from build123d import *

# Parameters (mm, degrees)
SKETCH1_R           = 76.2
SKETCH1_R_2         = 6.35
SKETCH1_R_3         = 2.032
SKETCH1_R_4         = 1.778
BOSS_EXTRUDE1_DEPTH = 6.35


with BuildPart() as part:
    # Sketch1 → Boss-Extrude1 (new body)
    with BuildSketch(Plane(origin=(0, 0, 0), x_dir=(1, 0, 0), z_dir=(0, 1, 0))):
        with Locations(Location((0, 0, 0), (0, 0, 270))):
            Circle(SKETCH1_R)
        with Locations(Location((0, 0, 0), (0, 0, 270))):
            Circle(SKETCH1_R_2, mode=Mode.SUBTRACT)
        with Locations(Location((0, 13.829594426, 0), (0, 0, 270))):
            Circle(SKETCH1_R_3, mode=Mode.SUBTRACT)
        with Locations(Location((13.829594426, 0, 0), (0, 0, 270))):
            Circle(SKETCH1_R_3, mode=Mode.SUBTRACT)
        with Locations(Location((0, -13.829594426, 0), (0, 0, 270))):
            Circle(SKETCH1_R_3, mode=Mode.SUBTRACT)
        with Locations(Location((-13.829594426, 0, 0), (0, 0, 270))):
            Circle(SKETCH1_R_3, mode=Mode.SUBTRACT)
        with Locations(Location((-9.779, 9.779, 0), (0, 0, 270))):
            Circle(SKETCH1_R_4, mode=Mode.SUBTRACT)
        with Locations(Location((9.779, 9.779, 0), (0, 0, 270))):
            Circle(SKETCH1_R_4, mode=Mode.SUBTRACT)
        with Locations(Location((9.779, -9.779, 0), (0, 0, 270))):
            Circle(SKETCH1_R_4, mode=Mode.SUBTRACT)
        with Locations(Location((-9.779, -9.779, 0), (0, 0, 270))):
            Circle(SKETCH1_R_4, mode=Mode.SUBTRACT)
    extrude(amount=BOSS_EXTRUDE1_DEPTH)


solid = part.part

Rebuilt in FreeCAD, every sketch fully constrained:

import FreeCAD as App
import Part
import Sketcher

V = App.Vector
Q = App.Units.Quantity

doc = App.newDocument("Part")
body = doc.addObject("PartDesign::Body", "Body")

# Sketch on XZ plane
sketch1 = doc.addObject("Sketcher::SketchObject", "Sketch")
body.addObject(sketch1)
sketch1.AttachmentSupport = (doc.XZ_Plane, [""])
sketch1.MapMode = "FlatFace"
sketch1.addGeometry([
    Part.Circle(V(0, 0, 0), V(0, 0, 1), 76.2),  # 0
    Part.Circle(V(-9.779, -9.779, 0), V(0, 0, 1), 1.778),  # 1
    Part.Circle(V(0, -13.829594, 0), V(0, 0, 1), 2.032),  # 2
    Part.Circle(V(0, 0, 0), V(0, 0, 1), 6.35),  # 3
    Part.Circle(V(-13.829594, 0, 0), V(0, 0, 1), 2.032),  # 4
    Part.Circle(V(-9.779, 9.779, 0), V(0, 0, 1), 1.778),  # 5
    Part.Circle(V(9.779, -9.779, 0), V(0, 0, 1), 1.778),  # 6
    Part.Circle(V(13.829594, 0, 0), V(0, 0, 1), 2.032),  # 7
    Part.Circle(V(0, 13.829594, 0), V(0, 0, 1), 2.032),  # 8
    Part.Circle(V(9.779, 9.779, 0), V(0, 0, 1), 1.778),  # 9
], False)
sketch1.addConstraint([
    Sketcher.Constraint("Coincident", 0, 3, -1, 1),
    Sketcher.Constraint("Coincident", 3, 3, -1, 1),
    Sketcher.Constraint("Equal", 2, 4),
    Sketcher.Constraint("Equal", 1, 5),
    Sketcher.Constraint("Equal", 5, 6),
    Sketcher.Constraint("Equal", 4, 7),
    Sketcher.Constraint("Equal", 7, 8),
    Sketcher.Constraint("Equal", 6, 9),
    Sketcher.Constraint("Symmetric", 5, 3, 6, 3, -1, 1),
    Sketcher.Constraint("Symmetric", 4, 3, 7, 3, -1, 1),
    Sketcher.Constraint("Symmetric", 2, 3, 8, 3, -1, 1),
    Sketcher.Constraint("Symmetric", 1, 3, 9, 3, -1, 1),
    Sketcher.Constraint("Symmetric", 1, 3, 6, 3, -2),
    Sketcher.Constraint("PointOnObject", 2, 3, -2),
    Sketcher.Constraint("PointOnObject", 4, 3, -1),
    Sketcher.Constraint("Diameter", 0, Q("6 in")),
    Sketcher.Constraint("Diameter", 3, Q("0.5 in")),
    Sketcher.Constraint("Diameter", 1, Q("0.14 in")),
    Sketcher.Constraint("Diameter", 2, Q("0.16 in")),
    Sketcher.Constraint("DistanceY", 1, 3, 5, 3, Q("0.77 in")),
    Sketcher.Constraint("DistanceX", 1, 3, 6, 3, Q("0.77 in")),
    Sketcher.Constraint("DistanceY", 2, 3, -1, 1, Q("13.829594 mm")),
    Sketcher.Constraint("DistanceX", 4, 3, -1, 1, Q("13.829594 mm")),
])
pad1 = doc.addObject("PartDesign::Pad", "Pad")
body.addObject(pad1)
pad1.Profile = sketch1
pad1.Length = Q("0.25 in")
pad1.Reversed = True

doc.recompute()
